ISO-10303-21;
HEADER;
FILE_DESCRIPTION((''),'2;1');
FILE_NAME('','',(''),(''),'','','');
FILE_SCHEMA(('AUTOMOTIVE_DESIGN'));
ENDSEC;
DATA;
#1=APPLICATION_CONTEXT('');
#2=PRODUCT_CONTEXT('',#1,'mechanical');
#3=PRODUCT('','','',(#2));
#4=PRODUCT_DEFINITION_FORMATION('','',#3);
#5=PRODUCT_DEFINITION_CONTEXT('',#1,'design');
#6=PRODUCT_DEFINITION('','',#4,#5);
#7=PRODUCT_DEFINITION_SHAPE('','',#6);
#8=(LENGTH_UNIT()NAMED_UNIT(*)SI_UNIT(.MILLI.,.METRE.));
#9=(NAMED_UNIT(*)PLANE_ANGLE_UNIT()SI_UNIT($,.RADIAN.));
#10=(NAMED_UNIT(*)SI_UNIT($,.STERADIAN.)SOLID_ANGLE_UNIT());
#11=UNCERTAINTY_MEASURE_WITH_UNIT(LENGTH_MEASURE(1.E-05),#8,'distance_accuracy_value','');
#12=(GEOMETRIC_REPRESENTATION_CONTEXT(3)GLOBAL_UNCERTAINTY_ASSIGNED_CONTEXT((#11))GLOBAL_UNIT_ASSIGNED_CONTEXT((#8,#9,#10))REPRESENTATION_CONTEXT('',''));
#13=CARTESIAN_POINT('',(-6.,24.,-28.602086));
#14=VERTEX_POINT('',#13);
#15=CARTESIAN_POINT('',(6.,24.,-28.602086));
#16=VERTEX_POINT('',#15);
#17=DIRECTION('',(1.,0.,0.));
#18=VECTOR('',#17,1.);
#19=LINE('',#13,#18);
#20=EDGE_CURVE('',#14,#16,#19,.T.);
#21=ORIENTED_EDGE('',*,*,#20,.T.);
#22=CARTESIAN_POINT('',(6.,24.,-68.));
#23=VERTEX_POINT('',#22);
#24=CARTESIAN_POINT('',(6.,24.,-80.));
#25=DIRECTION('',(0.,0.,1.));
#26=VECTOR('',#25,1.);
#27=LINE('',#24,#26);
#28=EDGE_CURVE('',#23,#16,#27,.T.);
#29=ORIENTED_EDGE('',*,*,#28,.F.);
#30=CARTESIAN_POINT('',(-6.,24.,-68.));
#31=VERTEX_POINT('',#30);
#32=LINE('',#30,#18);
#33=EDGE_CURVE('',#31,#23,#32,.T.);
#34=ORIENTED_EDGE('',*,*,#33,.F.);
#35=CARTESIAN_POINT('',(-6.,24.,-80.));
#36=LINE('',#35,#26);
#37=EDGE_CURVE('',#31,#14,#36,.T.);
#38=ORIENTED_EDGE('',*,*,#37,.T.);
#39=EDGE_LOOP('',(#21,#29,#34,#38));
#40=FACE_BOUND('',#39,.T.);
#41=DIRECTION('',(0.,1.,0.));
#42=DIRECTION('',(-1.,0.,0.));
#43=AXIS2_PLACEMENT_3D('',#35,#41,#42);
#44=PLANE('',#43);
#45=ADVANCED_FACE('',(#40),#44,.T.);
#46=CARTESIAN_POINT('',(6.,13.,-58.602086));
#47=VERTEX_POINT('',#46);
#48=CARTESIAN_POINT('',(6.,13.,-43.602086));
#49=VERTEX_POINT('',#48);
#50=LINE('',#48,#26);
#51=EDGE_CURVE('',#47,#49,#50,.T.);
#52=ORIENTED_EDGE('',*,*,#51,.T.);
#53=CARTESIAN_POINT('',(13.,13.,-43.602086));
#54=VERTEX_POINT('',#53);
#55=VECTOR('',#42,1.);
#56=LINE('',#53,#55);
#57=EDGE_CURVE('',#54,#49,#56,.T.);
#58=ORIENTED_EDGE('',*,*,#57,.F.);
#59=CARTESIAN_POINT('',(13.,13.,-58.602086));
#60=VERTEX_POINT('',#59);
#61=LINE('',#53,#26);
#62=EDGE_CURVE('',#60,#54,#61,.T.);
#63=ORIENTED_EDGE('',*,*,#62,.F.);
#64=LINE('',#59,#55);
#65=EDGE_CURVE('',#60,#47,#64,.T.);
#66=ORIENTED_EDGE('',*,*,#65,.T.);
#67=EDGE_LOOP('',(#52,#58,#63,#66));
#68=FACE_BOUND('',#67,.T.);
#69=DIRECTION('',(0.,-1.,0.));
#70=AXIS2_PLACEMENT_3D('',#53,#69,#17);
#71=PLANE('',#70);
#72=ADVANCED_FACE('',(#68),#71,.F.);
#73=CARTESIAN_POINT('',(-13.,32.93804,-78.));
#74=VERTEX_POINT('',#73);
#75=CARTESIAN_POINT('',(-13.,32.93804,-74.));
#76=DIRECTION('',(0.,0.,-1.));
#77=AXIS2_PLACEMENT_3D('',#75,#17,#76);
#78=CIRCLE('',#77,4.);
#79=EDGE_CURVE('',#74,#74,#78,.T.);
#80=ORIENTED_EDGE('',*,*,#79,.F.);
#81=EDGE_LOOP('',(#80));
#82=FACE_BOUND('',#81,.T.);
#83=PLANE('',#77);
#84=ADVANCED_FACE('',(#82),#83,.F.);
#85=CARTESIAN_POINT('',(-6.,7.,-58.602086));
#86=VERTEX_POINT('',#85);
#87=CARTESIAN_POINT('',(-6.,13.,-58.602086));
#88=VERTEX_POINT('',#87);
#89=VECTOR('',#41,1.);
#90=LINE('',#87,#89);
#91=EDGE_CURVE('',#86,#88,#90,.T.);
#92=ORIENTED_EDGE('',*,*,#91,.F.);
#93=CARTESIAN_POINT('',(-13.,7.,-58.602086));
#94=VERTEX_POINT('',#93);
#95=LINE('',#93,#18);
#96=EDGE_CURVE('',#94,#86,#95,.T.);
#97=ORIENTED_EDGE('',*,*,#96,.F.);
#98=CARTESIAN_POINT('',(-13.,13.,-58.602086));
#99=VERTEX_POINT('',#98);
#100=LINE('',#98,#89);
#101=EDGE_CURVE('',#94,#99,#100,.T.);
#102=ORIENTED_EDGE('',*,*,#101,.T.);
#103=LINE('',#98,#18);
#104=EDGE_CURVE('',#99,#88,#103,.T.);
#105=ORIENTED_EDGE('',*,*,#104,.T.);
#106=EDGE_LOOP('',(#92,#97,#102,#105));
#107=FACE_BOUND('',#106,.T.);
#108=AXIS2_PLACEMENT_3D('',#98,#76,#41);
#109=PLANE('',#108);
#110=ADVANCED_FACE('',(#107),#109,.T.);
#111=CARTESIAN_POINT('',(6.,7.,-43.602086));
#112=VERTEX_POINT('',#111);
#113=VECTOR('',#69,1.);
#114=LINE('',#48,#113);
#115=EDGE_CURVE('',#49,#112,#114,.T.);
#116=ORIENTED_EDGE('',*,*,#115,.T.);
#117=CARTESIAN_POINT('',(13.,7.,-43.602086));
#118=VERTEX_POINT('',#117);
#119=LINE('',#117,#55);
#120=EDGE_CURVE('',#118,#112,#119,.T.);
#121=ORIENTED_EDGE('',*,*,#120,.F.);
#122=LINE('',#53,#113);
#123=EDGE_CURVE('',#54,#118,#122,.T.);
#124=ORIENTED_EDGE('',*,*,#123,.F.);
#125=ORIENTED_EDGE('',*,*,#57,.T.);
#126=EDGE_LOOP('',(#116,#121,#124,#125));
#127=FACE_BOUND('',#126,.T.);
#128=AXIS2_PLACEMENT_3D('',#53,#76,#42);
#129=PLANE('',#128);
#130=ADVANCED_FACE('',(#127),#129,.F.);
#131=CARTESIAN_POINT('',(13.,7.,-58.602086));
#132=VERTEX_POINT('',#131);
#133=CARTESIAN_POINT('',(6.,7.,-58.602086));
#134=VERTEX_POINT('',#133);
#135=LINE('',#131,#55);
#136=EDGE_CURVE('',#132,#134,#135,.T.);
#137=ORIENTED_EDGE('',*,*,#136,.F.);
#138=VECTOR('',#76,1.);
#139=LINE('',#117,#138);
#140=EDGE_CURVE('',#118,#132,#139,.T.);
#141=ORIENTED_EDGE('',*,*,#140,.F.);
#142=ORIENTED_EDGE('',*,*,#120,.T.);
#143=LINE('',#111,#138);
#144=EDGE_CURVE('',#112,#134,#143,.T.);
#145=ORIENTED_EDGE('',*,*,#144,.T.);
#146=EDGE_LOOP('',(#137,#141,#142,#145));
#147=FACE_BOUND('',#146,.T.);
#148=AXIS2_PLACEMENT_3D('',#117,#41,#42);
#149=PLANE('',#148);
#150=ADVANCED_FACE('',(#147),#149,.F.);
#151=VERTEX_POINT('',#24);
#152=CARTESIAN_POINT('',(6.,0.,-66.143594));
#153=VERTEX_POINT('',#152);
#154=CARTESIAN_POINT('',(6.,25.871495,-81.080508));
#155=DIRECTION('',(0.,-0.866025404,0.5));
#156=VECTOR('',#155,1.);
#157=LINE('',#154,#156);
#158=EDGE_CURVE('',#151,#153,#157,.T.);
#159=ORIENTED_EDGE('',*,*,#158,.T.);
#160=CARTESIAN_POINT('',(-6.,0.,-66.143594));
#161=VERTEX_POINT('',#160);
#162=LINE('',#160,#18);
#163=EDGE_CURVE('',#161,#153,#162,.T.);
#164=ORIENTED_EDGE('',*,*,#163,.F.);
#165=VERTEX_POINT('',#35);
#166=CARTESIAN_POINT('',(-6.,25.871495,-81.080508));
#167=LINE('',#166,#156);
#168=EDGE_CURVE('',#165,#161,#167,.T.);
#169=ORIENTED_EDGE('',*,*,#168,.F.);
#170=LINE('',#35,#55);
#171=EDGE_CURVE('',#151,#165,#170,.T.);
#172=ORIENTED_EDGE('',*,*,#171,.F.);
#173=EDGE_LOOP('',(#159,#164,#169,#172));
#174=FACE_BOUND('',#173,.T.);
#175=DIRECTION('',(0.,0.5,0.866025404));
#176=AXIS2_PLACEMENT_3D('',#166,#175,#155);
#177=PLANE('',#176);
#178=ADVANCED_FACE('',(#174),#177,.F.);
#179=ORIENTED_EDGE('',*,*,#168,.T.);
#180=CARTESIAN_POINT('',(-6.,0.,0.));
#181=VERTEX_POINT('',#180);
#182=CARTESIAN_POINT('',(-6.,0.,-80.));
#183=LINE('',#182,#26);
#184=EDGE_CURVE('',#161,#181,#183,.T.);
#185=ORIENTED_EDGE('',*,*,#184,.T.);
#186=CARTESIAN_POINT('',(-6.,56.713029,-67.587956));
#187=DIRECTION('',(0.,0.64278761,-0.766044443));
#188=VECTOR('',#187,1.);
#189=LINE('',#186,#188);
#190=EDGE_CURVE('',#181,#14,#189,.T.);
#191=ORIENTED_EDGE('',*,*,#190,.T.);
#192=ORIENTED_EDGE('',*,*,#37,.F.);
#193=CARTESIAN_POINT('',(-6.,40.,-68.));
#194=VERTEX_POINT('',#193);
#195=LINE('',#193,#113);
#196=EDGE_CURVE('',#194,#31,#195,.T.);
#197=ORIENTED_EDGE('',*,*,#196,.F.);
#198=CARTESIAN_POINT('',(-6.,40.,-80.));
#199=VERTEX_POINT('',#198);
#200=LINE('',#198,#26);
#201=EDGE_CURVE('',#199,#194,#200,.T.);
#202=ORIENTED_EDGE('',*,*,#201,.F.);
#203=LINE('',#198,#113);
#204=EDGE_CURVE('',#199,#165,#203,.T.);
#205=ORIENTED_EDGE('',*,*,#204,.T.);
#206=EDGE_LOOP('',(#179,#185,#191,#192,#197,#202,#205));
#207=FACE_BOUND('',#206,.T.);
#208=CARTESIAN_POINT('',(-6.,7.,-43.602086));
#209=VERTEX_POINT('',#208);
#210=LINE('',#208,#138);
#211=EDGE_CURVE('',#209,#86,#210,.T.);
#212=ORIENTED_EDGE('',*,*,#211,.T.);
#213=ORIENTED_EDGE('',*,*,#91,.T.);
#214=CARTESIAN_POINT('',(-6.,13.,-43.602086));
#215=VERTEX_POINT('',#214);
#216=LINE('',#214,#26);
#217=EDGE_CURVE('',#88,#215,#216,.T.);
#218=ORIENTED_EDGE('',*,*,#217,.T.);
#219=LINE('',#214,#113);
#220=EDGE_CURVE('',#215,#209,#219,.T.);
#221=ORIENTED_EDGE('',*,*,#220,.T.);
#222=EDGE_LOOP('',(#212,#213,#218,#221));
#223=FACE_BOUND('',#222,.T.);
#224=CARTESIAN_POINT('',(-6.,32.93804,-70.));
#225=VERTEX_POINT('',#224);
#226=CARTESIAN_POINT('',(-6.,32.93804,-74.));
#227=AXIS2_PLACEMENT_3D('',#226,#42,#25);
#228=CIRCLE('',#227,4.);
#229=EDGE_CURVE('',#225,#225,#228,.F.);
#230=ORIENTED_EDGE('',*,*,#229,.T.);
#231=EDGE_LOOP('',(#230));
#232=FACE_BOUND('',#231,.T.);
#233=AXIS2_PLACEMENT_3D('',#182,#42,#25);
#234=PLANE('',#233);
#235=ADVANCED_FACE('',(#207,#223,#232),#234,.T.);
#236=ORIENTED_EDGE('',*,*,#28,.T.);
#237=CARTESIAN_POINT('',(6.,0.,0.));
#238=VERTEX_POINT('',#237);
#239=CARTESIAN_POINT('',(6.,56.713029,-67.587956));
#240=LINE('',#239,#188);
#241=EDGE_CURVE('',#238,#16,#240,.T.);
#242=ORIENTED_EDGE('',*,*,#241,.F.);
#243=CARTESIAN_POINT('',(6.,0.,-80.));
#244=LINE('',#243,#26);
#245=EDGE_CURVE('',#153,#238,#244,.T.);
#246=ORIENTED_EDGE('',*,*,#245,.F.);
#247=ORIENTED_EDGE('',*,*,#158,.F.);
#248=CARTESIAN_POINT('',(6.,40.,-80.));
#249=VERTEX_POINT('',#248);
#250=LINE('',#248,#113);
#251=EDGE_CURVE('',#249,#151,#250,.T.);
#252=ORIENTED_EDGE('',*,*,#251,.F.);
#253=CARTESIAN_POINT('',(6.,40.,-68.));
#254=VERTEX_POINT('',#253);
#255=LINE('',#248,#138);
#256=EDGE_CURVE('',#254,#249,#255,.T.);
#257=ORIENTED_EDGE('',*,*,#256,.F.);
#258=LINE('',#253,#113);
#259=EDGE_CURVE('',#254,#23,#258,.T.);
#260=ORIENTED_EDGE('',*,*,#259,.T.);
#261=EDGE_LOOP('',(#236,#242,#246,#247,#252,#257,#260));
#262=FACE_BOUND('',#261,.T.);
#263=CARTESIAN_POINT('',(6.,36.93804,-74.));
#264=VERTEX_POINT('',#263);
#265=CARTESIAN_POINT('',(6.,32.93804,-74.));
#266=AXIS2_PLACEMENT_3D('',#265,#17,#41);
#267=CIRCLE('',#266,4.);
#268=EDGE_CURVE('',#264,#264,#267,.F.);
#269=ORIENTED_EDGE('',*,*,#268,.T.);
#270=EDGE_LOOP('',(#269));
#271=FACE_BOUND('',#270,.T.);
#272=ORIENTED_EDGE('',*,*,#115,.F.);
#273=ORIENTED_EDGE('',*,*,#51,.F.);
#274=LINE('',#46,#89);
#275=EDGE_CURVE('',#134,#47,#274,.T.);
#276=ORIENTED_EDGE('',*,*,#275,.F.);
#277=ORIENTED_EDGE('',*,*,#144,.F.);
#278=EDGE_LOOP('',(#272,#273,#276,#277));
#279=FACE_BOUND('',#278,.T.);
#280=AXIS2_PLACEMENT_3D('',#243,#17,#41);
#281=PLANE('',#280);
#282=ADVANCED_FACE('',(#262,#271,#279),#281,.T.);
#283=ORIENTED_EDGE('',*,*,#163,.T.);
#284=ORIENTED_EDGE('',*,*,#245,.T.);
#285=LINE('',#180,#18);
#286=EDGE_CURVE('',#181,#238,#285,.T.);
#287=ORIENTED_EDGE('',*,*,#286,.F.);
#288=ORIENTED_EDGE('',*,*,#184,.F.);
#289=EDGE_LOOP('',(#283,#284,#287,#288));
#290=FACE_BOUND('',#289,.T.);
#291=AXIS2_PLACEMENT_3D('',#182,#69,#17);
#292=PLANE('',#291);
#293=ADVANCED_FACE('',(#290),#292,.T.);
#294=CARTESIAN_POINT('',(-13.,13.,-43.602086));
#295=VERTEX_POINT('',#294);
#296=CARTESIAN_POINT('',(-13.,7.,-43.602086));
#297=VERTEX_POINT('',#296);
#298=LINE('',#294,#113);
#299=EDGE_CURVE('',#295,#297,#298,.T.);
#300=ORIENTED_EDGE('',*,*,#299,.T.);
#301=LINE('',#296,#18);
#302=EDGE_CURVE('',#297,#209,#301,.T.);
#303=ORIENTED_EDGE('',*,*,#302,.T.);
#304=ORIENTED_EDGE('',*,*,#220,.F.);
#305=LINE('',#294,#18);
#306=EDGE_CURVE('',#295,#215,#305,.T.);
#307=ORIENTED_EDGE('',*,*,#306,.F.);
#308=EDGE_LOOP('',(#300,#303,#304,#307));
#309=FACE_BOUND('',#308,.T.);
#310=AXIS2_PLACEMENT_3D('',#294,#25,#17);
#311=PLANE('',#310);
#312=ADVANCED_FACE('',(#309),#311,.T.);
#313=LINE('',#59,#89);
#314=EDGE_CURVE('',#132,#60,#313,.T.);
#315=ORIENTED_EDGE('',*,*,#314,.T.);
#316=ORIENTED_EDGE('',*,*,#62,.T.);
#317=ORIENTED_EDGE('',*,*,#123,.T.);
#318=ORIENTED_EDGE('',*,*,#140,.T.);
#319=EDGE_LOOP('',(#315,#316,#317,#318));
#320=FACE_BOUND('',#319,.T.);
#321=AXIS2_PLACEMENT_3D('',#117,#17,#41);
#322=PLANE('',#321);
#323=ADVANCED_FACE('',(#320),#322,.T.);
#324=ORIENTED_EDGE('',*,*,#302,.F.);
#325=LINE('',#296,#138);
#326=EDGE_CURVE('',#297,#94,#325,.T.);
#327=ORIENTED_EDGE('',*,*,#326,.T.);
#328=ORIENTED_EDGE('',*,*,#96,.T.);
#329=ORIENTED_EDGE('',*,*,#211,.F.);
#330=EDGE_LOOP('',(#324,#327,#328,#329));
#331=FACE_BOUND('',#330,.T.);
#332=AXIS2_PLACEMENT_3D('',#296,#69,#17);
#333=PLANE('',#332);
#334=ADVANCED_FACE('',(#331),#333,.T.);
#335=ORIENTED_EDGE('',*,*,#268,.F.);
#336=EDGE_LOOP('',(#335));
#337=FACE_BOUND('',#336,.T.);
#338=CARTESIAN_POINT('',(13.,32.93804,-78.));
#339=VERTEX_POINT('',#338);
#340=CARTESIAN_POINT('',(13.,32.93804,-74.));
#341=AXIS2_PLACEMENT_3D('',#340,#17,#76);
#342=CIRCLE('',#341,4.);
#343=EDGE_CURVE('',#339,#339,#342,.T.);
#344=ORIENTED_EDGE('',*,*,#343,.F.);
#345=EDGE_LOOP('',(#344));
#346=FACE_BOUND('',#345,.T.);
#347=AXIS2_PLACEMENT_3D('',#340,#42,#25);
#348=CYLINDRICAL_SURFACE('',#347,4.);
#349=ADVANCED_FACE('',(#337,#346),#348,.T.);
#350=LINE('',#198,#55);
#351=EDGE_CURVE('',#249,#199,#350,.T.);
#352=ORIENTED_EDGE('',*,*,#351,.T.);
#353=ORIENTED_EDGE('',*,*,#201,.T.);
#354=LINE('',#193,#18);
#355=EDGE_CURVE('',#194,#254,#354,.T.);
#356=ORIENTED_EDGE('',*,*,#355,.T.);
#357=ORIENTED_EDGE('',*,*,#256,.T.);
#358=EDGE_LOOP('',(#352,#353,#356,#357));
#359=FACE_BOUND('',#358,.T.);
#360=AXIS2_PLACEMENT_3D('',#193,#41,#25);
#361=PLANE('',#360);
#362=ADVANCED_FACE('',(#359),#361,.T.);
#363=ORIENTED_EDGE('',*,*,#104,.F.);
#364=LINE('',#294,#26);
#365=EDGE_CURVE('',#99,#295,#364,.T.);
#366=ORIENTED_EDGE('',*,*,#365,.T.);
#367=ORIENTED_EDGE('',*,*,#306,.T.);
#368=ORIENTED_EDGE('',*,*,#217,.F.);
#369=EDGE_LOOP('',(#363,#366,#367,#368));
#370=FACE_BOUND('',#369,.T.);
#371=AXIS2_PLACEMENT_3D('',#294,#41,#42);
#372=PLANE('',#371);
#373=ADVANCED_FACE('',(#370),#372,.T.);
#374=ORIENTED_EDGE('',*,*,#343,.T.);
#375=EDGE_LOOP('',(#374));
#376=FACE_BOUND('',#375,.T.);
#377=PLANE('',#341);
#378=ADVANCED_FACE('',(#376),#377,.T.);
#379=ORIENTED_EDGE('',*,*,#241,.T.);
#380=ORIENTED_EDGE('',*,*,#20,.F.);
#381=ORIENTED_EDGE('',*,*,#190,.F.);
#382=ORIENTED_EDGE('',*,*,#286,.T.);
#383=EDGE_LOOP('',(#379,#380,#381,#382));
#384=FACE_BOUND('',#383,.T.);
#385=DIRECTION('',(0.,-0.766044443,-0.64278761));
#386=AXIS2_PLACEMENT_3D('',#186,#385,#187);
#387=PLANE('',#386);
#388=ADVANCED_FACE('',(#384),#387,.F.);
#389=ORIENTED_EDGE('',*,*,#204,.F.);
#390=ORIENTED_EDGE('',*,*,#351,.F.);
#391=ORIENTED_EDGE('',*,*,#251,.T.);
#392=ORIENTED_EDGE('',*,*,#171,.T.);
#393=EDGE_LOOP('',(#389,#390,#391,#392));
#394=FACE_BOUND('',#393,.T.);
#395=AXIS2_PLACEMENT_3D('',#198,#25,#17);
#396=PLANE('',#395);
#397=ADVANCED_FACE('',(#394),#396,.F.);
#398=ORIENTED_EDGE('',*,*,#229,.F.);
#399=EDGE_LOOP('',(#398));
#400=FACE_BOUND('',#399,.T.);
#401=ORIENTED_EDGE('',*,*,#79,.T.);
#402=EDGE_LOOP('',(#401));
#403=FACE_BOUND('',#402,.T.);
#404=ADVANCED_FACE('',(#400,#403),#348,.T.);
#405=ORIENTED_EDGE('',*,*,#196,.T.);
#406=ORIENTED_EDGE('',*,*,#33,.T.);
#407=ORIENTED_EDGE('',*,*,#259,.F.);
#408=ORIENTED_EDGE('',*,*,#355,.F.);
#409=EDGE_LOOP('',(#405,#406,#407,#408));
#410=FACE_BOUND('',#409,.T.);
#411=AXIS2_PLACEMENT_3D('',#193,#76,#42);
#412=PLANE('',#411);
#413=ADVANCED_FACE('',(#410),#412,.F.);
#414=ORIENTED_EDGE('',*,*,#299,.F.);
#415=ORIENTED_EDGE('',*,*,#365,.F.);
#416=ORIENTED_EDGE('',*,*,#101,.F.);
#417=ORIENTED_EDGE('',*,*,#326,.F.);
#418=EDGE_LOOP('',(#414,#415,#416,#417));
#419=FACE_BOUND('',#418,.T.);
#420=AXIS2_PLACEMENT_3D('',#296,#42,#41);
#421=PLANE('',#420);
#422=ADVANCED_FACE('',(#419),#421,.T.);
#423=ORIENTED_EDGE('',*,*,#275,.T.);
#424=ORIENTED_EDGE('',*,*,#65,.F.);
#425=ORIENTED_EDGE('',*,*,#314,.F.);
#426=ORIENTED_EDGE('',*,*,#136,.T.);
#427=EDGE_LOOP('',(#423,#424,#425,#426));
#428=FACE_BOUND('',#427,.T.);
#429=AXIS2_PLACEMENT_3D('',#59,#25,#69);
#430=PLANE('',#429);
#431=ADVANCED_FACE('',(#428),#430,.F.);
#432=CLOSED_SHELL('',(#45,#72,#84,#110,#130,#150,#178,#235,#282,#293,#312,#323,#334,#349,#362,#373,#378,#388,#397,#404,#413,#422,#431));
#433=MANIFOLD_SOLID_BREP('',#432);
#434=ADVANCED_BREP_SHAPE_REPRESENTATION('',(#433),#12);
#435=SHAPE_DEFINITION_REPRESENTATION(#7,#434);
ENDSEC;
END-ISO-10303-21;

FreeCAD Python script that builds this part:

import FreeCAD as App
import Part
import Sketcher

V = App.Vector
Q = App.Units.Quantity


def add_polygon(sketch, points):
    """Adds a closed chain of lines whose ends are joined by coincident constraints."""
    first, n = sketch.GeometryCount, len(points)
    for a, b in zip(points, points[1:] + points[:1]):
        sketch.addGeometry(Part.LineSegment(App.Vector(*a, 0), App.Vector(*b, 0)), False)
    for i in range(n):
        sketch.addConstraint(Sketcher.Constraint("Coincident", first + i, 2, first + (i + 1) % n, 1))

doc = App.newDocument("Part")
body = doc.addObject("PartDesign::Body", "Body")

# Sketch on XY plane
sketch1 = body.newObject("Sketcher::SketchObject", "Sketch")
sketch1.AttachmentSupport = (doc.getObject("XY_Plane"), [""])
sketch1.MapMode = "FlatFace"
add_polygon(sketch1, [(-6, 24), (-6, 0), (6, 0), (6, 24)])  # lines 0-3
sketch1.addConstraint([
    Sketcher.Constraint("Vertical", 0),
    Sketcher.Constraint("Horizontal", 1),
    Sketcher.Constraint("Vertical", 2),
    Sketcher.Constraint("Horizontal", 3),
    Sketcher.Constraint("Symmetric", 0, 2, 1, 2, -1, 1),
    Sketcher.Constraint("DistanceX", 1, 1, 1, 2, 12.0),
    Sketcher.Constraint("DistanceY", 0, 2, 0, 1, 24.0),
])
pad1 = body.newObject("PartDesign::Pad", "Pad")
pad1.Profile = sketch1
pad1.Length = 80
pad1.Reversed = True

# Sketch on YZ plane
sketch2 = body.newObject("Sketcher::SketchObject", "Sketch001")
sketch2.AttachmentSupport = (doc.getObject("YZ_Plane"), [""])
sketch2.MapMode = "FlatFace"
sketch2.AttachmentOffset = App.Placement(V(0, 0, 6), App.Rotation())
add_polygon(sketch2, [(24, 0), (0, 0), (24, -28.602086)])  # lines 0-2
add_polygon(sketch2, [(24, -80), (0, -66.143594), (0, -80)])  # lines 3-5
sketch2.addConstraint([
    Sketcher.Constraint("Horizontal", 0),
    Sketcher.Constraint("Vertical", 2),
    Sketcher.Constraint("Vertical", 4),
    Sketcher.Constraint("Horizontal", 5),
    Sketcher.Constraint("Coincident", 0, 2, -1, 1),
    Sketcher.Constraint("PointOnObject", 3, 2, -2),
    Sketcher.Constraint("Vertical", 2, 2, 5, 2),
    Sketcher.Constraint("DistanceX", 0, 2, 0, 1, 24.0),
    Sketcher.Constraint("Angle", 1, Q("-50 deg")),
    Sketcher.Constraint("Angle", 3, Q("150 deg")),
    Sketcher.Constraint("DistanceY", 4, 2, -1, 1, 80.0),
])
pocket1 = body.newObject("PartDesign::Pocket", "Pocket")
pocket1.Profile = sketch2
pocket1.Length = 12

# Sketch on YZ plane
sketch3 = body.newObject("Sketcher::SketchObject", "Sketch002")
sketch3.AttachmentSupport = (doc.getObject("YZ_Plane"), [""])
sketch3.MapMode = "FlatFace"
sketch3.AttachmentOffset = App.Placement(V(0, 0, 6), App.Rotation())
add_polygon(sketch3, [(13, -43.602086), (7, -43.602086), (7, -58.602086), (13, -58.602086)])  # lines 0-3
sketch3.addConstraint([
    Sketcher.Constraint("Horizontal", 0),
    Sketcher.Constraint("Vertical", 1),
    Sketcher.Constraint("Horizontal", 2),
    Sketcher.Constraint("Vertical", 3),
    Sketcher.Constraint("DistanceX", 0, 2, 0, 1, 6.0),
    Sketcher.Constraint("DistanceY", 1, 2, 1, 1, 15.0),
    Sketcher.Constraint("DistanceX", -1, 1, 0, 2, 7.0),
    Sketcher.Constraint("DistanceY", 0, 2, -1, 1, 43.602086),
])
pad2 = body.newObject("PartDesign::Pad", "Pad001")
pad2.Profile = sketch3
pad2.Length = 7
doc.recompute()

mirrored = body.newObject("PartDesign::Mirrored", "Mirrored")
mirrored.Originals = [pad2]
mirrored.MirrorPlane = (doc.getObject("YZ_Plane"), [""])
body.Tip = mirrored

# Sketch on XZ plane
sketch4 = body.newObject("Sketcher::SketchObject", "Sketch003")
sketch4.AttachmentSupport = (doc.getObject("XZ_Plane"), [""])
sketch4.MapMode = "FlatFace"
sketch4.AttachmentOffset = App.Placement(V(0, 0, -24), App.Rotation())
add_polygon(sketch4, [(-6, -80), (-6, -68), (6, -68), (6, -80)])  # lines 0-3
sketch4.addConstraint([
    Sketcher.Constraint("Vertical", 0),
    Sketcher.Constraint("Horizontal", 1),
    Sketcher.Constraint("Vertical", 2),
    Sketcher.Constraint("Horizontal", 3),
    Sketcher.Constraint("Equal", 3, 0),
    Sketcher.Constraint("DistanceX", 1, 1, 1, 2, 12.0),
    Sketcher.Constraint("DistanceX", 0, 2, -1, 1, 6.0),
    Sketcher.Constraint("DistanceY", 0, 2, -1, 1, 68.0),
])
pad3 = body.newObject("PartDesign::Pad", "Pad002")
pad3.Profile = sketch4
pad3.Length = 16
pad3.Reversed = True

# Sketch on YZ plane
sketch5 = body.newObject("Sketcher::SketchObject", "Sketch004")
sketch5.AttachmentSupport = (doc.getObject("YZ_Plane"), [""])
sketch5.MapMode = "FlatFace"
sketch5.addGeometry(Part.Circle(V(32.93804, -74, 0), V(0, 0, 1), 4), False)
sketch5.addConstraint([
    Sketcher.Constraint("Diameter", 0, 8.0),
    Sketcher.Constraint("DistanceY", 0, 3, -1, 1, 74.0),
    Sketcher.Constraint("DistanceX", -1, 1, 0, 3, 32.93804),
])
pad4 = body.newObject("PartDesign::Pad", "Pad003")
pad4.Profile = sketch5
pad4.Length = 26
pad4.Midplane = True

doc.recompute()
